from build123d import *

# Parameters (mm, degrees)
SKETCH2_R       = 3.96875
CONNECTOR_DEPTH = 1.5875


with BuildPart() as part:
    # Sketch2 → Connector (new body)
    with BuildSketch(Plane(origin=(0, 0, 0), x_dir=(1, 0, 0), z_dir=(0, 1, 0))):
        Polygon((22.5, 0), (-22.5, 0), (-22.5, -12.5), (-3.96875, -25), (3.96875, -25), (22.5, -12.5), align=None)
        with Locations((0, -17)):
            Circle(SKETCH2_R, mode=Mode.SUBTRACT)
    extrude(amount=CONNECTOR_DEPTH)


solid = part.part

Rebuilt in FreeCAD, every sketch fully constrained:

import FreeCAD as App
import Part
import Sketcher
Q = App.Units.Quantity

doc = App.newDocument("Part")
body = doc.addObject("PartDesign::Body", "Body")

sketch1 = body.newObject("Sketcher::SketchObject", "Sketch")
sketch1.AttachmentSupport = (doc.getObject("XZ_Plane"), [""])
sketch1.MapMode = "FlatFace"
sketch1.addGeometry([
    Part.LineSegment(App.Vector(22.5, 0, 0), App.Vector(-22.5, 0, 0)),
    Part.LineSegment(App.Vector(-22.5, 0, 0), App.Vector(-22.5, 12.5, 0)),
    Part.LineSegment(App.Vector(-22.5, 12.5, 0), App.Vector(-4, 25, 0)),
    Part.LineSegment(App.Vector(-4, 25, 0), App.Vector(4, 25, 0)),
    Part.LineSegment(App.Vector(4, 25, 0), App.Vector(22.5, 12.5, 0)),
    Part.LineSegment(App.Vector(22.5, 12.5, 0), App.Vector(22.5, 0, 0)),
    Part.Circle(App.Vector(0, 17, 0), App.Vector(0, 0, 1), 4),
], False)
sketch1.addConstraint([
    Sketcher.Constraint("Coincident", 0, 2, 1, 1),
    Sketcher.Constraint("Coincident", 1, 2, 2, 1),
    Sketcher.Constraint("Coincident", 2, 2, 3, 1),
    Sketcher.Constraint("Coincident", 3, 2, 4, 1),
    Sketcher.Constraint("Coincident", 4, 2, 5, 1),
    Sketcher.Constraint("Coincident", 5, 2, 0, 1),
    Sketcher.Constraint("Horizontal", 0),
    Sketcher.Constraint("Vertical", 1),
    Sketcher.Constraint("Horizontal", 3),
    Sketcher.Constraint("Vertical", 5),
    Sketcher.Constraint("Symmetric", 0, 2, 5, 2, -1, 1),
    Sketcher.Constraint("PointOnObject", 6, 3, -2),
    Sketcher.Constraint("Horizontal", 1, 2, 4, 2),
    Sketcher.Constraint("Equal", 2, 4),
    Sketcher.Constraint("DistanceX", 0, 2, 0, 1, Q("45 mm")),
    Sketcher.Constraint("DistanceY", 1, 1, 1, 2, Q("12.5 mm")),
    Sketcher.Constraint("DistanceY", -1, 1, 6, 3, Q("17 mm")),
    Sketcher.Constraint("DistanceY", -1, 1, 2, 2, Q("25 mm")),
    Sketcher.Constraint("Diameter", 6, Q("7.9375 mm")),
    Sketcher.Constraint("DistanceX", 3, 1, 3, 2, Q("7.9375 mm")),
])
pad1 = body.newObject("PartDesign::Pad", "Pad")
pad1.Profile = sketch1
pad1.Length = 1.5875
pad1.Reversed = True

doc.recompute()
